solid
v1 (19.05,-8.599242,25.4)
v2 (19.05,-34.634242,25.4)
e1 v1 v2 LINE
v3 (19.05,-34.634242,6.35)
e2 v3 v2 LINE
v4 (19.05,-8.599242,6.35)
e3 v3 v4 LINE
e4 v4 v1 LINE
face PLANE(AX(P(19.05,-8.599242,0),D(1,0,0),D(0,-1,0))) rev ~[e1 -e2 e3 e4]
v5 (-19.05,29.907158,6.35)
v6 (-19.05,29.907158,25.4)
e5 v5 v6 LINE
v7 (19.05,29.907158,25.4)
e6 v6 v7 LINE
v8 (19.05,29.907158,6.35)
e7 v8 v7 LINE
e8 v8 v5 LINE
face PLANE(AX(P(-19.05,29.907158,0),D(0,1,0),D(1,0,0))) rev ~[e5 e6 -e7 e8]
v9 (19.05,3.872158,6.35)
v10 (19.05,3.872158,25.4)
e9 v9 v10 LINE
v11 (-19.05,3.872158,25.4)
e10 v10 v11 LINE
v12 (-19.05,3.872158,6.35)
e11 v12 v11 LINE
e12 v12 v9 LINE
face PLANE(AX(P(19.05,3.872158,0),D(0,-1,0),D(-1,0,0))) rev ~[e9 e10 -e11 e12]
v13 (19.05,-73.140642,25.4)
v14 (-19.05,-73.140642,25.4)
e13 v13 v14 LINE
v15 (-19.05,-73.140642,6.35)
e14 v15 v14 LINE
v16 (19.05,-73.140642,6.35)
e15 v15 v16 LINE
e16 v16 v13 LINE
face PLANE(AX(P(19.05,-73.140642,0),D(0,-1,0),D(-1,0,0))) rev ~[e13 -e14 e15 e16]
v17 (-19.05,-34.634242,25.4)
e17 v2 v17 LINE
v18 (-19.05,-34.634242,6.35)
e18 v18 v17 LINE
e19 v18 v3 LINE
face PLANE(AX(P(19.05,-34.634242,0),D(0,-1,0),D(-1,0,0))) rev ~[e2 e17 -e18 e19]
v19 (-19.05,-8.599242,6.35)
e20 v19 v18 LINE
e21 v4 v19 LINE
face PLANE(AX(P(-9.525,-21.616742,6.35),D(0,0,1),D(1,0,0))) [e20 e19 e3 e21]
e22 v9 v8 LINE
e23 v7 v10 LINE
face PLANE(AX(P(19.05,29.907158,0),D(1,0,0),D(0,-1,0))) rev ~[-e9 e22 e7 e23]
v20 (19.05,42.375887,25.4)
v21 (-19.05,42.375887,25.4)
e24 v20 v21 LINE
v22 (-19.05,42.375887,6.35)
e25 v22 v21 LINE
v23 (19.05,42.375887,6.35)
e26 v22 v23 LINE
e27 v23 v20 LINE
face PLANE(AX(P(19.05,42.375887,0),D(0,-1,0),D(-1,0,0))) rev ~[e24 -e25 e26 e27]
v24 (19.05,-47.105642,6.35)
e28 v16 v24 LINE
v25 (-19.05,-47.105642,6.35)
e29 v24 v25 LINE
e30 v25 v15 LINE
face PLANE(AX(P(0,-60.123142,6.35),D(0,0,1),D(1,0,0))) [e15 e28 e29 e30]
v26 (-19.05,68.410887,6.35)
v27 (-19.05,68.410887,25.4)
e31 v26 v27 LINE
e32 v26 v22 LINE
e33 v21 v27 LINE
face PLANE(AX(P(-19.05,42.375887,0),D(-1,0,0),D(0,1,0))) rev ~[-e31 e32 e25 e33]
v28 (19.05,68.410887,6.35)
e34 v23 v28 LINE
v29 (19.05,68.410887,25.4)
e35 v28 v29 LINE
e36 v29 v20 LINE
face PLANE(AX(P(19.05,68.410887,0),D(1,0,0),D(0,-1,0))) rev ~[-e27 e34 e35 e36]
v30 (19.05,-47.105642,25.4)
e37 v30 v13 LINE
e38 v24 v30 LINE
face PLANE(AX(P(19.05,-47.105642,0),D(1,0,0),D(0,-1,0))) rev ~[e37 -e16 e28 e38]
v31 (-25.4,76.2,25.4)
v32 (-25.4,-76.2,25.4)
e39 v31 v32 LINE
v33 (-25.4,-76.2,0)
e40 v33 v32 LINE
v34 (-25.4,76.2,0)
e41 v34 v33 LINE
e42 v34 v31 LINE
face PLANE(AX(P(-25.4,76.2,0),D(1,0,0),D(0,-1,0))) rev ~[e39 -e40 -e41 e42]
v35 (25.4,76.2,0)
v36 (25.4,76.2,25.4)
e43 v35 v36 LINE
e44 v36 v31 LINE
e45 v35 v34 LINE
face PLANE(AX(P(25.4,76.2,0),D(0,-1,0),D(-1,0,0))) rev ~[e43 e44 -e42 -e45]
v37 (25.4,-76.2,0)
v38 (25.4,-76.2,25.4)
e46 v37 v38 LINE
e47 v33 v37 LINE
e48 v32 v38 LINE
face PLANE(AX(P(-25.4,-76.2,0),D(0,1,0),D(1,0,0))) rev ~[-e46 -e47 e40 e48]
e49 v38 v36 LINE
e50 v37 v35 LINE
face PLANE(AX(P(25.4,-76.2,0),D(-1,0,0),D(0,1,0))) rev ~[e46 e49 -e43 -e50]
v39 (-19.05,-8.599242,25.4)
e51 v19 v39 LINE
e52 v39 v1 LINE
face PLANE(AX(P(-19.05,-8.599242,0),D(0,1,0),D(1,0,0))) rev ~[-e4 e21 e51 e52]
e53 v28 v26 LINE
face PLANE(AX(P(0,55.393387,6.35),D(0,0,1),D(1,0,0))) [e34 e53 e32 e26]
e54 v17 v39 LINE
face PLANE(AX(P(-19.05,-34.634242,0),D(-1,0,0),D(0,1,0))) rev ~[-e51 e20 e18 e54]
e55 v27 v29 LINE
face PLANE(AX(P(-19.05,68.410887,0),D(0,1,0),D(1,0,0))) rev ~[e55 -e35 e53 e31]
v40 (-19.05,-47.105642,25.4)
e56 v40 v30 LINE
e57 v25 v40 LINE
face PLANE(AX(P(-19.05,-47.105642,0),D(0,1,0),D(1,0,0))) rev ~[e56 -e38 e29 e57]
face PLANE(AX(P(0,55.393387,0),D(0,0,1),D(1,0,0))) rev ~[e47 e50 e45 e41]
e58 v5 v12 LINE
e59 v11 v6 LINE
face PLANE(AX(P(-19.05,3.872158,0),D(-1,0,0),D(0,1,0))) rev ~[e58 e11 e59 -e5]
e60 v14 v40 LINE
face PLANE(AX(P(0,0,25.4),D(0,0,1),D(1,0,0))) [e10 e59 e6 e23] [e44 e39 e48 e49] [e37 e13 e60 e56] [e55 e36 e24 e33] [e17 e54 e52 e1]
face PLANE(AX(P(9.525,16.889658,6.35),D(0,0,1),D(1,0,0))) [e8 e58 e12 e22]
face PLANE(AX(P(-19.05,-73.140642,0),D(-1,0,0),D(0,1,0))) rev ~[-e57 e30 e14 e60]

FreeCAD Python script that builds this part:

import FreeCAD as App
import Part
import Sketcher
from FreeCAD import Vector
Q = App.Units.Quantity


def add_polygon(sketch, points):
    """Adds a closed chain of lines whose ends are joined by coincident constraints."""
    first, n = sketch.GeometryCount, len(points)
    for a, b in zip(points, points[1:] + points[:1]):
        sketch.addGeometry(Part.LineSegment(App.Vector(*a, 0), App.Vector(*b, 0)), False)
    for i in range(n):
        sketch.addConstraint(Sketcher.Constraint("Coincident", first + i, 2, first + (i + 1) % n, 1))

doc = App.newDocument("Part")
body = doc.addObject("PartDesign::Body", "Body")

# Sketch on XY plane
sketch1 = doc.addObject("Sketcher::SketchObject", "Sketch")
body.addObject(sketch1)
sketch1.AttachmentSupport = (doc.XY_Plane, [""])
sketch1.MapMode = "FlatFace"
add_polygon(sketch1, [(25, -76), (25, 76), (-25, 76), (-25, -76)])  # lines 0-3
add_polygon(sketch1, [(-19, -73), (-19, -47), (19, -47), (19, -73)])  # lines 4-7
add_polygon(sketch1, [(-19, -35), (-19, -9), (19, -9), (19, -35)])  # lines 8-11
add_polygon(sketch1, [(-19, 4), (-19, 30), (19, 30), (19, 4)])  # lines 12-15
add_polygon(sketch1, [(-19, 42), (-19, 68), (19, 68), (19, 42)])  # lines 16-19
sketch1.addConstraint([
    Sketcher.Constraint("Vertical", 0),
    Sketcher.Constraint("Horizontal", 1),
    Sketcher.Constraint("Vertical", 2),
    Sketcher.Constraint("Horizontal", 3),
    Sketcher.Constraint("Vertical", 4),
    Sketcher.Constraint("Horizontal", 5),
    Sketcher.Constraint("Vertical", 6),
    Sketcher.Constraint("Horizontal", 7),
    Sketcher.Constraint("Vertical", 8),
    Sketcher.Constraint("Horizontal", 9),
    Sketcher.Constraint("Vertical", 10),
    Sketcher.Constraint("Horizontal", 11),
    Sketcher.Constraint("Vertical", 12),
    Sketcher.Constraint("Horizontal", 13),
    Sketcher.Constraint("Vertical", 14),
    Sketcher.Constraint("Horizontal", 15),
    Sketcher.Constraint("Vertical", 16),
    Sketcher.Constraint("Horizontal", 17),
    Sketcher.Constraint("Vertical", 18),
    Sketcher.Constraint("Horizontal", 19),
    Sketcher.Constraint("Symmetric", 0, 2, 2, 2, -1, 1),
    Sketcher.Constraint("Vertical", 7, 2, 8, 2),
    Sketcher.Constraint("Vertical", 6, 2, 9, 2),
    Sketcher.Constraint("Vertical", 11, 2, 12, 2),
    Sketcher.Constraint("Vertical", 10, 2, 13, 2),
    Sketcher.Constraint("Vertical", 15, 2, 16, 2),
    Sketcher.Constraint("Vertical", 14, 2, 17, 2),
    Sketcher.Constraint("Equal", 6, 8),
    Sketcher.Constraint("Equal", 10, 12),
    Sketcher.Constraint("Equal", 14, 16),
    Sketcher.Constraint("DistanceX", 1, 2, 1, 1, Q("2 in")),
    Sketcher.Constraint("DistanceY", 0, 1, 0, 2, Q("6 in")),
    Sketcher.Constraint("DistanceX", 5, 1, 5, 2, Q("1.5 in")),
    Sketcher.Constraint("DistanceY", 4, 1, 4, 2, Q("1.025 in")),
    Sketcher.Constraint("DistanceX", 4, 2, -1, 1, Q("0.75 in")),
    Sketcher.Constraint("DistanceY", 4, 2, 8, 2, Q("1.516 in")),
    Sketcher.Constraint("DistanceY", 8, 2, 12, 2, Q("1.516 in")),
    Sketcher.Constraint("DistanceY", 6, 2, -1, 1, 73.140642),
    Sketcher.Constraint("DistanceY", 12, 2, 16, 2, 38.503729),
])
pad1 = doc.addObject("PartDesign::Pad", "Pad")
body.addObject(pad1)
pad1.Profile = sketch1
pad1.Length = Q("1 in")

# Sketch on XY plane
sketch2 = doc.addObject("Sketcher::SketchObject", "Sketch001")
body.addObject(sketch2)
sketch2.AttachmentSupport = (doc.XY_Plane, [""])
sketch2.MapMode = "FlatFace"
add_polygon(sketch2, [(19, 42), (19, 68), (-19, 68), (-19, 42)])  # lines 0-3
add_polygon(sketch2, [(19, 30), (-19, 30), (-19, 4), (19, 4)])  # lines 4-7
add_polygon(sketch2, [(-19, -9), (-19, -35), (19, -35), (19, -9)])  # lines 8-11
add_polygon(sketch2, [(19, -47), (-19, -47), (-19, -73), (19, -73)])  # lines 12-15
sketch2.addConstraint([
    Sketcher.Constraint("Vertical", 0),
    Sketcher.Constraint("Horizontal", 1),
    Sketcher.Constraint("Vertical", 2),
    Sketcher.Constraint("Horizontal", 3),
    Sketcher.Constraint("Horizontal", 4),
    Sketcher.Constraint("Vertical", 5),
    Sketcher.Constraint("Horizontal", 6),
    Sketcher.Constraint("Vertical", 7),
    Sketcher.Constraint("Vertical", 8),
    Sketcher.Constraint("Horizontal", 9),
    Sketcher.Constraint("Vertical", 10),
    Sketcher.Constraint("Horizontal", 11),
    Sketcher.Constraint("Horizontal", 12),
    Sketcher.Constraint("Vertical", 13),
    Sketcher.Constraint("Horizontal", 14),
    Sketcher.Constraint("Vertical", 15),
    Sketcher.Constraint("Vertical", 2, 2, 4, 2),
    Sketcher.Constraint("Vertical", 3, 2, 6, 2),
    Sketcher.Constraint("Vertical", 5, 2, 8, 2),
    Sketcher.Constraint("Vertical", 7, 2, 9, 2),
    Sketcher.Constraint("Vertical", 11, 2, 12, 2),
    Sketcher.Constraint("Vertical", 10, 2, 14, 2),
    Sketcher.Constraint("Equal", 2, 5),
    Sketcher.Constraint("Equal", 7, 8),
    Sketcher.Constraint("Equal", 10, 13),
    Sketcher.Constraint("DistanceX", 1, 2, 1, 1, Q("1.5 in")),
    Sketcher.Constraint("DistanceY", 0, 1, 0, 2, Q("1.025 in")),
    Sketcher.Constraint("DistanceX", -1, 1, 0, 2, Q("0.75 in")),
    Sketcher.Constraint("DistanceY", 8, 2, 5, 2, Q("1.516 in")),
    Sketcher.Constraint("DistanceY", 12, 2, 8, 2, Q("0.491 in")),
    Sketcher.Constraint("DistanceY", -1, 1, 5, 2, 3.872158),
    Sketcher.Constraint("DistanceY", 4, 2, 2, 2, 12.468729),
])
pad2 = doc.addObject("PartDesign::Pad", "Pad001")
body.addObject(pad2)
pad2.Profile = sketch2
pad2.Length = Q("0.25 in")

doc.recompute()
